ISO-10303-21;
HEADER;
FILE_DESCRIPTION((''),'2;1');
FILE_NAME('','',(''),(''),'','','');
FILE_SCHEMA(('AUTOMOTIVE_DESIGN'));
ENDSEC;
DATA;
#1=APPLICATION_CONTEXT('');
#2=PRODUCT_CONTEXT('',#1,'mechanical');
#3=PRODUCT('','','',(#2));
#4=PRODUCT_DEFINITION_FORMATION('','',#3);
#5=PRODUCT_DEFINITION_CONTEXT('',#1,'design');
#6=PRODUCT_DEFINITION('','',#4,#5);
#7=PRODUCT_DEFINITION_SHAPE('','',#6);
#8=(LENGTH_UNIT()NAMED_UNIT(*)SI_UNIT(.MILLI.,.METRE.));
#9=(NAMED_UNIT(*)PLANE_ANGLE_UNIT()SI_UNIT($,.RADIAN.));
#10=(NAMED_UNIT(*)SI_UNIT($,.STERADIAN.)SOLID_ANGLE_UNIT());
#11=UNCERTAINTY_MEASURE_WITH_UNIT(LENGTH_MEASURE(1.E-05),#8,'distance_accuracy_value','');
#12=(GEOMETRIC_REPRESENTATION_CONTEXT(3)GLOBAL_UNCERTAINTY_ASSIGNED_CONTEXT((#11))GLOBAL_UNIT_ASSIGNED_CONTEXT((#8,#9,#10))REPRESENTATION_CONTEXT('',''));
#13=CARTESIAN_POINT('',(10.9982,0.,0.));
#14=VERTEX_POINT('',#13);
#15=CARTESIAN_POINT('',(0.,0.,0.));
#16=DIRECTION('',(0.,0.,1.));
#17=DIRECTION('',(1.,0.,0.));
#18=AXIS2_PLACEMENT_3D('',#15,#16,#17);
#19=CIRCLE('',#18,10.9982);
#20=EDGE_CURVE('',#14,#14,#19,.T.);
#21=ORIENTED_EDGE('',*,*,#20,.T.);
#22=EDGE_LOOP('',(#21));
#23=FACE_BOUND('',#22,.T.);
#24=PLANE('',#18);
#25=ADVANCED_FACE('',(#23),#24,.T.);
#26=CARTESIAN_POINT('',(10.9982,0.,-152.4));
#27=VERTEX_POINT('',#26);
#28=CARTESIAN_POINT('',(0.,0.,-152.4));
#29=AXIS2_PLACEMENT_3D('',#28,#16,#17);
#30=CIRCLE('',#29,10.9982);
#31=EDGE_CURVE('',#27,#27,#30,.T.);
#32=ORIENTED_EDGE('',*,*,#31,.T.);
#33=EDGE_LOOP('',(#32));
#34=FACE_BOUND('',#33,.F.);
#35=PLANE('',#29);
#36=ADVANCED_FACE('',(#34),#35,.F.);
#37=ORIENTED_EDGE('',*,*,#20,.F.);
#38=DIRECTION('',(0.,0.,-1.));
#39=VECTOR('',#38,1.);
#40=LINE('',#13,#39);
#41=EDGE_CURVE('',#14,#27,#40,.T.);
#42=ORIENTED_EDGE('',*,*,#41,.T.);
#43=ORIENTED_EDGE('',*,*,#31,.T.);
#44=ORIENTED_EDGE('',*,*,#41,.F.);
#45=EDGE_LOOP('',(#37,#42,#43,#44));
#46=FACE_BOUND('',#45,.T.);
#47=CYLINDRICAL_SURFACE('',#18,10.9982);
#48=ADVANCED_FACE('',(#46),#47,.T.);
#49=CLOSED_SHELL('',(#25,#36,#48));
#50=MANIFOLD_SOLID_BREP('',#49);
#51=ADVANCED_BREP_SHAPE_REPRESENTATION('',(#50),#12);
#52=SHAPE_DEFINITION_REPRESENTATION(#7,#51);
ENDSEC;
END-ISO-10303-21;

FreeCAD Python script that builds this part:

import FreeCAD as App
import Part
import Sketcher
from FreeCAD import Vector
Q = App.Units.Quantity

doc = App.newDocument("Part")
body = doc.addObject("PartDesign::Body", "Body")

# Sketch on XY plane
sketch1 = doc.addObject("Sketcher::SketchObject", "Sketch")
body.addObject(sketch1)
sketch1.AttachmentSupport = (doc.XY_Plane, [""])
sketch1.MapMode = "FlatFace"
sketch1.addGeometry(Part.Circle(Vector(0, 0, 0), Vector(0, 0, 1), 11), False)
sketch1.addConstraint(Sketcher.Constraint("Coincident", 0, 3, -1, 1))
sketch1.addConstraint(Sketcher.Constraint("Diameter", 0, Q("0.866 in")))
pad1 = doc.addObject("PartDesign::Pad", "Pad")
body.addObject(pad1)
pad1.Profile = sketch1
pad1.Length = Q("6 in")
pad1.Reversed = True

doc.recompute()
